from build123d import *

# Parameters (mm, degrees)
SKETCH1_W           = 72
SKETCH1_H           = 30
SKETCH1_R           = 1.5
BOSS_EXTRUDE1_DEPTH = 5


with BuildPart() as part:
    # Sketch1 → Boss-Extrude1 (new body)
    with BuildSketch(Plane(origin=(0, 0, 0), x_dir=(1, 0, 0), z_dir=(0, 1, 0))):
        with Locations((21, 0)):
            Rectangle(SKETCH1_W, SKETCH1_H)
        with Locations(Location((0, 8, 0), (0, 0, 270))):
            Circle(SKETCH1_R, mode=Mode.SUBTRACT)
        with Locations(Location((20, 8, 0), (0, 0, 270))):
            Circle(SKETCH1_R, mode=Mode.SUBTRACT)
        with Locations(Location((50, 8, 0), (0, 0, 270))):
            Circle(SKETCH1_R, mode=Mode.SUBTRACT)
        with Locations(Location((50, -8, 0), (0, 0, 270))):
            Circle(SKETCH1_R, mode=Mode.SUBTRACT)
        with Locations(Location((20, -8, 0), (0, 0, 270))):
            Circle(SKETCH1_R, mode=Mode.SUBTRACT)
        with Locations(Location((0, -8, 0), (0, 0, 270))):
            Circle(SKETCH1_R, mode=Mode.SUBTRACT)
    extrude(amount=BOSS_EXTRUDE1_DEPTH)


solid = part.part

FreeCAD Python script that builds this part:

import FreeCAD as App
import Part
import Sketcher


def add_polygon(sketch, points):
    """Adds a closed chain of lines whose ends are joined by coincident constraints."""
    first, n = sketch.GeometryCount, len(points)
    for a, b in zip(points, points[1:] + points[:1]):
        sketch.addGeometry(Part.LineSegment(App.Vector(*a, 0), App.Vector(*b, 0)), False)
    for i in range(n):
        sketch.addConstraint(Sketcher.Constraint("Coincident", first + i, 2, first + (i + 1) % n, 1))

doc = App.newDocument("Part")
params = doc.addObject("Spreadsheet::Sheet", "Params")
for row, (alias, value) in enumerate([
    ("sketch1_diameter", "3 mm"),
    ("sketch1_width", "72 mm"),
    ("sketch1_height", "30 mm"),
    ("pad1_length", "5 mm"),
], start=1):
    params.set(f"A{row}", alias)
    params.set(f"B{row}", "=" + value)
    params.setAlias(f"B{row}", alias)

body = doc.addObject("PartDesign::Body", "Body")

# Sketch on XZ plane
sketch1 = body.newObject("Sketcher::SketchObject", "Sketch")
sketch1.AttachmentSupport = (doc.getObject("XZ_Plane"), [""])
sketch1.MapMode = "FlatFace"
add_polygon(sketch1, [(-15, -15), (-15, 15), (57, 15), (57, -15)])  # lines 0-3
sketch1.addGeometry(Part.Circle(App.Vector(0, 8, 0), App.Vector(0, 0, 1), 1.5), False)  # 4
sketch1.addGeometry(Part.Circle(App.Vector(20, 8, 0), App.Vector(0, 0, 1), 1.5), False)  # 5
sketch1.addGeometry(Part.Circle(App.Vector(50, 8, 0), App.Vector(0, 0, 1), 1.5), False)  # 6
sketch1.addGeometry(Part.Circle(App.Vector(0, -8, 0), App.Vector(0, 0, 1), 1.5), False)  # 7
sketch1.addGeometry(Part.Circle(App.Vector(20, -8, 0), App.Vector(0, 0, 1), 1.5), False)  # 8
sketch1.addGeometry(Part.Circle(App.Vector(50, -8, 0), App.Vector(0, 0, 1), 1.5), False)  # 9
sketch1.addConstraint([
    Sketcher.Constraint("Vertical", 0),
    Sketcher.Constraint("Horizontal", 1),
    Sketcher.Constraint("Vertical", 2),
    Sketcher.Constraint("Horizontal", 3),
    Sketcher.Constraint("Equal", 4, 5),
    Sketcher.Constraint("Equal", 5, 6),
    Sketcher.Constraint("Equal", 6, 7),
    Sketcher.Constraint("Equal", 7, 8),
    Sketcher.Constraint("Equal", 8, 9),
    Sketcher.Constraint("Symmetric", 4, 3, 7, 3, -1, 1),
    Sketcher.Constraint("Symmetric", 5, 3, 8, 3, -1),
    Sketcher.Constraint("Symmetric", 6, 3, 9, 3, -1),
    Sketcher.Constraint("PointOnObject", 4, 3, -2),
    Sketcher.Constraint("Horizontal", 4, 3, 5, 3),
    Sketcher.Constraint("Horizontal", 5, 3, 6, 3),
    Sketcher.Constraint("Diameter", 4, 3.0),
    Sketcher.Constraint("DistanceX", 1, 1, 1, 2, 72.0),
    Sketcher.Constraint("DistanceY", 0, 1, 0, 2, 30.0),
    Sketcher.Constraint("DistanceY", -1, 1, 4, 3, 8.0),
    Sketcher.Constraint("DistanceX", -1, 1, 5, 3, 20.0),
    Sketcher.Constraint("DistanceX", -1, 1, 6, 3, 50.0),
    Sketcher.Constraint("DistanceX", 0, 2, -1, 1, 15.0),
    Sketcher.Constraint("DistanceY", -1, 1, 0, 2, 15.0),
])
sketch1.setExpression("Constraints[19]", "Params.sketch1_diameter")
sketch1.setExpression("Constraints[20]", "Params.sketch1_width")
sketch1.setExpression("Constraints[21]", "Params.sketch1_height")
pad1 = body.newObject("PartDesign::Pad", "Pad")
pad1.Profile = sketch1
pad1.setExpression("Length", "Params.pad1_length")
pad1.Reversed = True

doc.recompute()
